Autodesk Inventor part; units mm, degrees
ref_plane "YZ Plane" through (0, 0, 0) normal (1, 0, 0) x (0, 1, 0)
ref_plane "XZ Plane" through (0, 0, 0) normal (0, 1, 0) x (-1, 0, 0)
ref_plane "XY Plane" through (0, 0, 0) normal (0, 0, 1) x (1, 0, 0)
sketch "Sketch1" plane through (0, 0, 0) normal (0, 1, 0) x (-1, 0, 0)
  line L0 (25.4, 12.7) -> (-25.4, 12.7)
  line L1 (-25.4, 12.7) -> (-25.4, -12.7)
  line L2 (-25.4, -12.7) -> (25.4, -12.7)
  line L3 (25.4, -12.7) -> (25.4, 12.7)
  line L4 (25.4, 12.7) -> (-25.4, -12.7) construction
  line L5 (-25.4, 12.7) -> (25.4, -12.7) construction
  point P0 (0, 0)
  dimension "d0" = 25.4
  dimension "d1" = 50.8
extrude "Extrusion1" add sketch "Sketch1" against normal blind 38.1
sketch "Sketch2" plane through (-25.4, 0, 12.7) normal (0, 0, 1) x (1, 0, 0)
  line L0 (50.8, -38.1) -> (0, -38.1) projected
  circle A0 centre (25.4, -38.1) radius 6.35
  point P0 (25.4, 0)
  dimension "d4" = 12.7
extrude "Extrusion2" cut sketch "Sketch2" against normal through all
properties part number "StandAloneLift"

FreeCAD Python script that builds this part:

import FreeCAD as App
import Part
import Sketcher
Q = App.Units.Quantity


def add_polygon(sketch, points):
    """Adds a closed chain of lines whose ends are joined by coincident constraints."""
    first, n = sketch.GeometryCount, len(points)
    for a, b in zip(points, points[1:] + points[:1]):
        sketch.addGeometry(Part.LineSegment(App.Vector(*a, 0), App.Vector(*b, 0)), False)
    for i in range(n):
        sketch.addConstraint(Sketcher.Constraint("Coincident", first + i, 2, first + (i + 1) % n, 1))

doc = App.newDocument("Part")
body = doc.addObject("PartDesign::Body", "Body")

# Sketch on XZ plane
sketch1 = doc.addObject("Sketcher::SketchObject", "Sketch")
body.addObject(sketch1)
sketch1.AttachmentSupport = (doc.XZ_Plane, [""])
sketch1.MapMode = "FlatFace"
add_polygon(sketch1, [(-25, -13), (-25, 13), (25, 13), (25, -13)])  # lines 0-3
sketch1.addConstraint([
    Sketcher.Constraint("Vertical", 0),
    Sketcher.Constraint("Horizontal", 1),
    Sketcher.Constraint("Vertical", 2),
    Sketcher.Constraint("Horizontal", 3),
    Sketcher.Constraint("Symmetric", 0, 2, 2, 2, -1, 1),
    Sketcher.Constraint("DistanceX", 1, 1, 1, 2, Q("2 in")),
    Sketcher.Constraint("DistanceY", 0, 1, 0, 2, Q("1 in")),
])
pad1 = doc.addObject("PartDesign::Pad", "Pad")
body.addObject(pad1)
pad1.Profile = sketch1
pad1.Length = Q("1.5 in")

# Sketch on XY plane
sketch2 = doc.addObject("Sketcher::SketchObject", "Sketch001")
body.addObject(sketch2)
sketch2.AttachmentSupport = (doc.XY_Plane, [""])
sketch2.MapMode = "FlatFace"
sketch2.AttachmentOffset = App.Placement(App.Vector(0, 0, 0.5 * 25.4), App.Rotation())
sketch2.addGeometry(Part.Circle(App.Vector(0, -38, 0), App.Vector(0, 0, 1), 6), False)
sketch2.addConstraint([
    Sketcher.Constraint("PointOnObject", 0, 3, -2),
    Sketcher.Constraint("Diameter", 0, Q("0.5 in")),
    Sketcher.Constraint("DistanceY", 0, 3, -1, 1, Q("1.5 in")),
])
pocket1 = doc.addObject("PartDesign::Pocket", "Pocket")
body.addObject(pocket1)
pocket1.Profile = sketch2
pocket1.Type = "ThroughAll"

doc.recompute()
